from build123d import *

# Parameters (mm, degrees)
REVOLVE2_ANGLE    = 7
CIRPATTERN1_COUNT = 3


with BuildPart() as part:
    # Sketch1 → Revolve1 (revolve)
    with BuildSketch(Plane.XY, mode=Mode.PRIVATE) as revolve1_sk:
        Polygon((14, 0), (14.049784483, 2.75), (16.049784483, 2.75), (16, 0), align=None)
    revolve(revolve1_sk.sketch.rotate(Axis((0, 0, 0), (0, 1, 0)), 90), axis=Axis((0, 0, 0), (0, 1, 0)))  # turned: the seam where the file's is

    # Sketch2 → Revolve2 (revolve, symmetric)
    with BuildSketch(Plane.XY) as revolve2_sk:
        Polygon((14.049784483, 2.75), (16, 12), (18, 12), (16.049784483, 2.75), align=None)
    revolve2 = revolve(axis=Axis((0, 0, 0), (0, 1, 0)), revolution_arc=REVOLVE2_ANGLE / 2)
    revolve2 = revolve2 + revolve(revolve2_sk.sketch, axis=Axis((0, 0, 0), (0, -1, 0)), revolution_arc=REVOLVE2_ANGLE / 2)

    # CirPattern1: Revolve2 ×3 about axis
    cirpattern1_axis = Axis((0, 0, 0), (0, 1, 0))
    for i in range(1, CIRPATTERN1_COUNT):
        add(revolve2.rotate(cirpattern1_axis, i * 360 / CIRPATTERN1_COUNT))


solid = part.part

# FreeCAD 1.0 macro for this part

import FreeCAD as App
import Part
import Sketcher

V = App.Vector
Q = App.Units.Quantity

doc = App.newDocument("Part")
body = doc.addObject("PartDesign::Body", "Body")

# Sketch on XY plane
sketch1 = body.newObject("Sketcher::SketchObject", "Sketch")
sketch1.AttachmentSupport = (doc.getObject("XY_Plane"), [""])
sketch1.MapMode = "FlatFace"
sketch1.addGeometry([
    Part.LineSegment(V(14.049784, 2.75, 0), V(14, 0, 0)),
    Part.LineSegment(V(14, 0, 0), V(16, 0, 0)),
    Part.LineSegment(V(16, 0, 0), V(16.049784, 2.75, 0)),
    Part.LineSegment(V(16.049784, 2.75, 0), V(14.049784, 2.75, 0)),
], False)
sketch1.addConstraint([
    Sketcher.Constraint("Coincident", 0, 2, 1, 1),
    Sketcher.Constraint("Coincident", 1, 2, 2, 1),
    Sketcher.Constraint("Coincident", 2, 2, 3, 1),
    Sketcher.Constraint("Coincident", 3, 2, 0, 1),
    Sketcher.Constraint("Horizontal", 1),
    Sketcher.Constraint("Horizontal", 3),
    Sketcher.Constraint("PointOnObject", 0, 2, -1),
    Sketcher.Constraint("Parallel", 0, 2),
    Sketcher.Constraint("DistanceX", 1, 1, 1, 2, Q("2 mm")),
    Sketcher.Constraint("DistanceX", -1, 1, 0, 2, Q("14 mm")),
    Sketcher.Constraint("DistanceY", -1, 1, 2, 2, Q("2.75 mm")),
    Sketcher.Constraint("Distance", 0, Q("2.750451 mm")),
])
revolution = body.newObject("PartDesign::Revolution", "Revolution")
revolution.Profile = sketch1
revolution.ReferenceAxis = (sketch1, ["V_Axis"])
revolution.Angle = 360

# Sketch on XY plane
sketch2 = body.newObject("Sketcher::SketchObject", "Sketch001")
sketch2.AttachmentSupport = (doc.getObject("XY_Plane"), [""])
sketch2.MapMode = "FlatFace"
sketch2.addGeometry([
    Part.LineSegment(V(16, 12, 0), V(14, 2.8, 0)),
    Part.LineSegment(V(14, 2.8, 0), V(16, 2.8, 0)),
    Part.LineSegment(V(16, 2.8, 0), V(18, 12, 0)),
    Part.LineSegment(V(18, 12, 0), V(16, 12, 0)),
], False)
sketch2.addConstraint([
    Sketcher.Constraint("Coincident", 0, 2, 1, 1),
    Sketcher.Constraint("Coincident", 1, 2, 2, 1),
    Sketcher.Constraint("Coincident", 2, 2, 3, 1),
    Sketcher.Constraint("Coincident", 3, 2, 0, 1),
    Sketcher.Constraint("Horizontal", 1),
    Sketcher.Constraint("Horizontal", 3),
    Sketcher.Constraint("Parallel", 0, 2),
    Sketcher.Constraint("DistanceX", 1, 1, 1, 2, Q("2 mm")),
    Sketcher.Constraint("DistanceX", -1, 1, 2, 2, Q("18 mm")),
    Sketcher.Constraint("DistanceY", -1, 1, 2, 2, Q("12 mm")),
    Sketcher.Constraint("DistanceY", -1, 1, 0, 2, Q("2.75 mm")),
    Sketcher.Constraint("Distance", 0, Q("9.453351 mm")),
])
revolution2 = body.newObject("PartDesign::Revolution", "Revolution001")
revolution2.Profile = sketch2
revolution2.ReferenceAxis = (sketch2, ["V_Axis"])
revolution2.Angle = 3.5

# Sketch on XY plane
sketch3 = body.newObject("Sketcher::SketchObject", "Sketch002")
sketch3.AttachmentSupport = (doc.getObject("XY_Plane"), [""])
sketch3.MapMode = "FlatFace"
sketch3.addGeometry([
    Part.LineSegment(V(16, 12, 0), V(14, 2.8, 0)),
    Part.LineSegment(V(14, 2.8, 0), V(16, 2.8, 0)),
    Part.LineSegment(V(16, 2.8, 0), V(18, 12, 0)),
    Part.LineSegment(V(18, 12, 0), V(16, 12, 0)),
], False)
sketch3.addConstraint([
    Sketcher.Constraint("Coincident", 0, 2, 1, 1),
    Sketcher.Constraint("Coincident", 1, 2, 2, 1),
    Sketcher.Constraint("Coincident", 2, 2, 3, 1),
    Sketcher.Constraint("Coincident", 3, 2, 0, 1),
    Sketcher.Constraint("Horizontal", 1),
    Sketcher.Constraint("Horizontal", 3),
    Sketcher.Constraint("Parallel", 0, 2),
    Sketcher.Constraint("DistanceX", 1, 1, 1, 2, Q("2 mm")),
    Sketcher.Constraint("DistanceX", -1, 1, 2, 2, Q("18 mm")),
    Sketcher.Constraint("DistanceY", -1, 1, 2, 2, Q("12 mm")),
    Sketcher.Constraint("DistanceY", -1, 1, 0, 2, Q("2.75 mm")),
    Sketcher.Constraint("Distance", 0, Q("9.453351 mm")),
])
revolution3 = body.newObject("PartDesign::Revolution", "Revolution002")
revolution3.Profile = sketch3
revolution3.ReferenceAxis = (sketch3, ["V_Axis"])
revolution3.Angle = 3.5
revolution3.Reversed = True
doc.recompute()

polarpattern = body.newObject("PartDesign::PolarPattern", "PolarPattern")
polarpattern.Originals = [revolution2, revolution3]
polarpattern.Axis = (doc.getObject("Y_Axis"), [""])
polarpattern.Angle = 360
polarpattern.Occurrences = 3
body.Tip = polarpattern

doc.recompute()
